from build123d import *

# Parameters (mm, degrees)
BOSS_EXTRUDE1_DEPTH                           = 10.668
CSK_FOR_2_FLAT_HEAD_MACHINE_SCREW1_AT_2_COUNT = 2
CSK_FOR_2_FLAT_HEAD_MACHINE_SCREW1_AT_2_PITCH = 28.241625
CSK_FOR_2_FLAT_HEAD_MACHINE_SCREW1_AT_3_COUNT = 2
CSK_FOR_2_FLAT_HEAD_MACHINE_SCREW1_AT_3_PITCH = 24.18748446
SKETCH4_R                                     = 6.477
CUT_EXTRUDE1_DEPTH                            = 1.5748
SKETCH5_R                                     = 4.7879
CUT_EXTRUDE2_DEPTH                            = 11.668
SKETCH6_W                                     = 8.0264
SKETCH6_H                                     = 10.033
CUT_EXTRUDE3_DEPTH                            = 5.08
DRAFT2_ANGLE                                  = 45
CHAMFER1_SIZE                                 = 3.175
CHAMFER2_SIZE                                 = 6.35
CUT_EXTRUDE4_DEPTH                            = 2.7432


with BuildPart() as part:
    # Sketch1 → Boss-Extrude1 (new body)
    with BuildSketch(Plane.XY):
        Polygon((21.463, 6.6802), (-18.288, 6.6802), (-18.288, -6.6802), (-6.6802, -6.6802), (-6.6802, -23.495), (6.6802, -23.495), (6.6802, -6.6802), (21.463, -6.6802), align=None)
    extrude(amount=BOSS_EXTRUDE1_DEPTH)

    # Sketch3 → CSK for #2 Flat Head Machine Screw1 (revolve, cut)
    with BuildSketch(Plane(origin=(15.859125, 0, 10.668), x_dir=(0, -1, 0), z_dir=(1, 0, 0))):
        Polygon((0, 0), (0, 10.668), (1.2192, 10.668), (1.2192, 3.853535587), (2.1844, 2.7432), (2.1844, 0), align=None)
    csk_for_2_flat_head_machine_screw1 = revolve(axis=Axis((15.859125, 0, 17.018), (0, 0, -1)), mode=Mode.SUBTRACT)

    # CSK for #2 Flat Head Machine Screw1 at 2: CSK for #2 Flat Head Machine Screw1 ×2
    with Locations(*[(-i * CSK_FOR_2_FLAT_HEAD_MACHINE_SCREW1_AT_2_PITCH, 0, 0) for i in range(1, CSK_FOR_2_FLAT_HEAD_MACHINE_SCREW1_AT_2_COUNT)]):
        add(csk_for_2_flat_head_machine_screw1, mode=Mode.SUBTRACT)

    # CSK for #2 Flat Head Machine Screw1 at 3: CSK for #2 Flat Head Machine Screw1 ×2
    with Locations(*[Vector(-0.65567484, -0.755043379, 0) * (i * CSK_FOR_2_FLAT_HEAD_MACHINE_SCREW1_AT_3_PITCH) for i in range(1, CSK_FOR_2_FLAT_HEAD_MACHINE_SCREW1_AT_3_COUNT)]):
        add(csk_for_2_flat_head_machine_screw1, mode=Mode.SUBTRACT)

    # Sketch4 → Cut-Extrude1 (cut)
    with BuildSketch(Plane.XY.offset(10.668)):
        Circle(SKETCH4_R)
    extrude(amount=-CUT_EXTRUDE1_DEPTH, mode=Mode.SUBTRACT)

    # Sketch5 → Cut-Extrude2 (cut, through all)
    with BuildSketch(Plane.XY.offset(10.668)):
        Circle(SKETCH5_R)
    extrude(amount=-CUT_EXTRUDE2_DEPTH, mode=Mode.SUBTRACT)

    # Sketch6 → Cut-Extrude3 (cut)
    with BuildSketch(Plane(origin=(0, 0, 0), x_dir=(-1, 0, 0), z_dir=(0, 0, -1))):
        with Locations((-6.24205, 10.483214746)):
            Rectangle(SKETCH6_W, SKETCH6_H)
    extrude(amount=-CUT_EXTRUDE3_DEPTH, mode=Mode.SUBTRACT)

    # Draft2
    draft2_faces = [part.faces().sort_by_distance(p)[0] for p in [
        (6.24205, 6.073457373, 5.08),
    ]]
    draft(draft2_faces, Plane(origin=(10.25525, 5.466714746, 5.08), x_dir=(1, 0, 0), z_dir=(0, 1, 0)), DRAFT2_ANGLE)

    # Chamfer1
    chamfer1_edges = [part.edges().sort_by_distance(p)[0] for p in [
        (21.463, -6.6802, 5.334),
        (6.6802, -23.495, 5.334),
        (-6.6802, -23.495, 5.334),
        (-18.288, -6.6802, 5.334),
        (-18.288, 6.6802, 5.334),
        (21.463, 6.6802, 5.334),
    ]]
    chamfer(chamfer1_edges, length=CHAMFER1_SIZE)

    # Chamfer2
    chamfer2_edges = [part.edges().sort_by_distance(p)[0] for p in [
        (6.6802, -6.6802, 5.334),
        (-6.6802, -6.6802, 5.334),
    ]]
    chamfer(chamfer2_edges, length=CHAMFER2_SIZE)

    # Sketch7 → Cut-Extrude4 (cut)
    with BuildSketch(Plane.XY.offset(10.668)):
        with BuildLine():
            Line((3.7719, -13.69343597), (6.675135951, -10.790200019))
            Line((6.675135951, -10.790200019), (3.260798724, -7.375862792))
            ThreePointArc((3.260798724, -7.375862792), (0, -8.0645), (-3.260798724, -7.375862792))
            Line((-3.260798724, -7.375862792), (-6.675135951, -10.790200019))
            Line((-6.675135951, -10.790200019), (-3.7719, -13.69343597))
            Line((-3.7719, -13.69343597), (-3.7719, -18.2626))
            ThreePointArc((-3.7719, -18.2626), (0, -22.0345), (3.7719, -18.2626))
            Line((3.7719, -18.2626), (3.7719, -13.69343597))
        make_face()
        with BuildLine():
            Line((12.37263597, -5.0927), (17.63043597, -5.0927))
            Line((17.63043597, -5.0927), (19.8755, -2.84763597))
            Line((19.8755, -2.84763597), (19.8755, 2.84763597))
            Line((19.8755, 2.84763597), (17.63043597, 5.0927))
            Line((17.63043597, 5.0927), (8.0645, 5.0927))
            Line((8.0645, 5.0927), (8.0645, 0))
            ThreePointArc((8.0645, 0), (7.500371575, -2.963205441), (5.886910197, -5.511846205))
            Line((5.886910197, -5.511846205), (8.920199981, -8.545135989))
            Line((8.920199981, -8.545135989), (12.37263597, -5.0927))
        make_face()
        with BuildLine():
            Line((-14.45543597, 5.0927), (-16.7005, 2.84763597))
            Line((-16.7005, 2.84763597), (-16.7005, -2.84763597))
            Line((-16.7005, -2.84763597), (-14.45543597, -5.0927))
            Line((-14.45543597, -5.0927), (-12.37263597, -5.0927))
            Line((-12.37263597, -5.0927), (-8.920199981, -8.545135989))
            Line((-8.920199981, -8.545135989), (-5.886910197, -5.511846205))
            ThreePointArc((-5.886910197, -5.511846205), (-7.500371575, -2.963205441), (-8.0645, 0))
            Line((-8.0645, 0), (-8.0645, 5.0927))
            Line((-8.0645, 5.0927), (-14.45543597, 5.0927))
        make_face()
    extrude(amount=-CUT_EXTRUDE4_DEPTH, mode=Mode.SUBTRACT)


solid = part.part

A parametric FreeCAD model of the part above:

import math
import FreeCAD as App
import Part
import Sketcher

V = App.Vector
Q = App.Units.Quantity


def edges_at(feature, points):
    """Names of the edges that pass closest to the given points."""
    edges = feature.Shape.Edges
    near = lambda p: min(range(len(edges)), key=lambda i: edges[i].distToShape(Part.Vertex(*p))[0])
    return sorted({f"Edge{near(p) + 1}" for p in points})


def faces_at(feature, points):
    """Names of the faces that lie closest to the given points."""
    faces = feature.Shape.Faces
    near = lambda p: min(range(len(faces)), key=lambda i: faces[i].distToShape(Part.Vertex(*p))[0])
    return sorted({f"Face{near(p) + 1}" for p in points})


def add_polygon(sketch, points):
    """Adds a closed chain of lines whose ends are joined by coincident constraints."""
    first, n = sketch.GeometryCount, len(points)
    for a, b in zip(points, points[1:] + points[:1]):
        sketch.addGeometry(Part.LineSegment(App.Vector(*a, 0), App.Vector(*b, 0)), False)
    for i in range(n):
        sketch.addConstraint(Sketcher.Constraint("Coincident", first + i, 2, first + (i + 1) % n, 1))

doc = App.newDocument("Part")
body = doc.addObject("PartDesign::Body", "Body")

# Sketch on XY plane
sketch1 = doc.addObject("Sketcher::SketchObject", "Sketch")
body.addObject(sketch1)
sketch1.AttachmentSupport = (doc.XY_Plane, [""])
sketch1.MapMode = "FlatFace"
add_polygon(sketch1, [(21, 7), (-18, 7), (-18, -7), (-7, -7), (-7, -23), (7, -23), (7, -7), (21, -7)])  # lines 0-7
sketch1.addConstraint([
    Sketcher.Constraint("Horizontal", 0),
    Sketcher.Constraint("Vertical", 1),
    Sketcher.Constraint("Horizontal", 2),
    Sketcher.Constraint("Vertical", 3),
    Sketcher.Constraint("Horizontal", 4),
    Sketcher.Constraint("Vertical", 5),
    Sketcher.Constraint("Horizontal", 6),
    Sketcher.Constraint("Vertical", 7),
    Sketcher.Constraint("Symmetric", 2, 2, 5, 2, -2),
    Sketcher.Constraint("Equal", 4, 1),
    Sketcher.Constraint("DistanceX", 0, 2, 0, 1, Q("1.565 in")),
    Sketcher.Constraint("DistanceX", 2, 1, 2, 2, Q("0.457 in")),
    Sketcher.Constraint("DistanceX", 4, 1, 4, 2, Q("0.526 in")),
    Sketcher.Constraint("DistanceY", 3, 2, 3, 1, Q("0.662 in")),
    Sketcher.Constraint("DistanceY", -1, 1, 0, 2, Q("0.263 in")),
])
pad1 = doc.addObject("PartDesign::Pad", "Pad")
body.addObject(pad1)
pad1.Profile = sketch1
pad1.Length = Q("0.42 in")

# Sketch on YZ plane
sketch2 = doc.addObject("Sketcher::SketchObject", "Sketch001")
body.addObject(sketch2)
sketch2.AttachmentSupport = (doc.YZ_Plane, [""])
sketch2.MapMode = "FlatFace"
sketch2.AttachmentOffset = App.Placement(V(0, 0, 15.859125), App.Rotation())
add_polygon(sketch2, [(0, 0), (0, 10.7), (-2.2, 10.7), (-2.2, 7.9), (-1.2, 6.8), (-1.2, 0)])  # lines 0-5
sketch2.addConstraint([
    Sketcher.Constraint("Vertical", 0),
    Sketcher.Constraint("Horizontal", 1),
    Sketcher.Constraint("Vertical", 2),
    Sketcher.Constraint("Vertical", 4),
    Sketcher.Constraint("Horizontal", 5),
    Sketcher.Constraint("Coincident", 5, 2, -1, 1),
    Sketcher.Constraint("Angle", 3, Q("-49 deg")),
    Sketcher.Constraint("DistanceY", 0, 1, 0, 2, Q("0.42 in")),
    Sketcher.Constraint("DistanceX", 1, 2, 1, 1, Q("0.086 in")),
    Sketcher.Constraint("DistanceX", 5, 1, 5, 2, Q("0.048 in")),
    Sketcher.Constraint("DistanceY", 2, 2, 2, 1, Q("0.108 in")),
])
groove = doc.addObject("PartDesign::Groove", "Groove")
body.addObject(groove)
groove.Profile = sketch2
groove.ReferenceAxis = (sketch2, ["V_Axis"])
groove.Angle = 360
doc.recompute()

linearpattern = doc.addObject("PartDesign::LinearPattern", "LinearPattern")
body.addObject(linearpattern)
linearpattern.Originals = [groove]
linearpattern.Direction = (doc.X_Axis, [""])
linearpattern.Mode = "offset"
linearpattern.Offset = 28.241625
linearpattern.Occurrences = 2
linearpattern.Reversed = True
body.Tip = linearpattern
doc.recompute()

datumline = doc.addObject("PartDesign::Line", "DatumLine")
body.addObject(datumline)
datumline.Placement = App.Placement(V(0, 0, 0), App.Rotation(V(0, 0, 1), V(-0.65567484, -0.755043379, 0)))
linearpattern2 = doc.addObject("PartDesign::LinearPattern", "LinearPattern001")
body.addObject(linearpattern2)
linearpattern2.Originals = [groove]
linearpattern2.Direction = (datumline, [""])
linearpattern2.Mode = "offset"
linearpattern2.Offset = 24.187484
linearpattern2.Occurrences = 2
body.Tip = linearpattern2

# Sketch on XY plane
sketch3 = doc.addObject("Sketcher::SketchObject", "Sketch002")
body.addObject(sketch3)
sketch3.AttachmentSupport = (doc.XY_Plane, [""])
sketch3.MapMode = "FlatFace"
sketch3.AttachmentOffset = App.Placement(V(0, 0, 0.42 * 25.4), App.Rotation())
sketch3.addGeometry(Part.Circle(V(0, 0, 0), V(0, 0, 1), 6), False)
sketch3.addConstraint([
    Sketcher.Constraint("Coincident", 0, 3, -1, 1),
    Sketcher.Constraint("Diameter", 0, Q("0.51 in")),
])
pocket1 = doc.addObject("PartDesign::Pocket", "Pocket")
body.addObject(pocket1)
pocket1.Profile = sketch3
pocket1.Length = Q("0.062 in")

# Sketch on XY plane
sketch4 = doc.addObject("Sketcher::SketchObject", "Sketch003")
body.addObject(sketch4)
sketch4.AttachmentSupport = (doc.XY_Plane, [""])
sketch4.MapMode = "FlatFace"
sketch4.AttachmentOffset = App.Placement(V(0, 0, 0.42 * 25.4), App.Rotation())
sketch4.addGeometry(Part.Circle(V(0, 0, 0), V(0, 0, 1), 4.8), False)
sketch4.addConstraint([
    Sketcher.Constraint("Coincident", 0, 3, -1, 1),
    Sketcher.Constraint("Diameter", 0, Q("0.377 in")),
])
pocket2 = doc.addObject("PartDesign::Pocket", "Pocket001")
body.addObject(pocket2)
pocket2.Profile = sketch4
pocket2.Type = "ThroughAll"

# Sketch on XY plane
sketch5 = doc.addObject("Sketcher::SketchObject", "Sketch004")
body.addObject(sketch5)
sketch5.AttachmentSupport = (doc.XY_Plane, [""])
sketch5.MapMode = "FlatFace"
add_polygon(sketch5, [(10, 15), (10, 5), (2, 5), (2, 15)])  # lines 0-3
sketch5.addConstraint([
    Sketcher.Constraint("Vertical", 0),
    Sketcher.Constraint("Horizontal", 1),
    Sketcher.Constraint("Vertical", 2),
    Sketcher.Constraint("Horizontal", 3),
    Sketcher.Constraint("DistanceX", 1, 2, 1, 1, Q("0.316 in")),
    Sketcher.Constraint("DistanceY", 0, 2, 0, 1, Q("0.395 in")),
    Sketcher.Constraint("DistanceX", -1, 1, 0, 2, Q("10.25525 mm")),
    Sketcher.Constraint("DistanceY", -1, 1, 0, 2, Q("5.466715 mm")),
])
pocket3 = doc.addObject("PartDesign::Pocket", "Pocket002")
body.addObject(pocket3)
pocket3.Profile = sketch5
pocket3.Length = Q("0.2 in")
pocket3.Reversed = True
doc.recompute()

datumplane = doc.addObject("PartDesign::Plane", "DatumPlane")
body.addObject(datumplane)
datumplane.AttachmentSupport = (doc.XZ_Plane, [""])
datumplane.MapMode = "FlatFace"
datumplane.AttachmentOffset = App.Placement(V(0, 0, -5.466715), App.Rotation())
draft = doc.addObject("PartDesign::Draft", "Draft")
body.addObject(draft)
draft.Base = (pocket3, faces_at(pocket3, [(6.242, 6.073, 5.08)]))
draft.NeutralPlane = (datumplane, [""])
draft.Angle = 45
draft.Reversed = True
doc.recompute()

chamfer = doc.addObject("PartDesign::Chamfer", "Chamfer")
body.addObject(chamfer)
chamfer.Base = (draft, edges_at(draft, [
    (21.463, -6.68, 5.334),
    (6.68, -23.495, 5.334),
    (-6.68, -23.495, 5.334),
    (-18.288, -6.68, 5.334),
    (-18.288, 6.68, 5.334),
    (21.463, 6.68, 5.334),
]))
chamfer.Size = Q("0.125 in")
doc.recompute()

chamfer2 = doc.addObject("PartDesign::Chamfer", "Chamfer001")
body.addObject(chamfer2)
chamfer2.Base = (chamfer, edges_at(chamfer, [(6.68, -6.68, 5.334), (-6.68, -6.68, 5.334)]))
chamfer2.Size = Q("0.25 in")

# Sketch on XY plane
sketch6 = doc.addObject("Sketcher::SketchObject", "Sketch005")
body.addObject(sketch6)
sketch6.AttachmentSupport = (doc.XY_Plane, [""])
sketch6.MapMode = "FlatFace"
sketch6.AttachmentOffset = App.Placement(V(0, 0, 0.42 * 25.4), App.Rotation())
sketch6.addGeometry([
    Part.LineSegment(V(3.8, -13.7, 0), V(6.7, -10.8, 0)),  # 0
    Part.LineSegment(V(6.7, -10.8, 0), V(3.3, -7.4, 0)),  # 1
    Part.ArcOfCircle(Part.Circle(V(0, 0, 0), V(0, 0, 1), 8.1), math.radians(-114), math.radians(-66)),  # 2
    Part.LineSegment(V(-3.3, -7.4, 0), V(-6.7, -10.8, 0)),  # 3
    Part.LineSegment(V(-6.7, -10.8, 0), V(-3.8, -13.7, 0)),  # 4
    Part.LineSegment(V(-3.8, -13.7, 0), V(-3.8, -18.3, 0)),  # 5
    Part.ArcOfCircle(Part.Circle(V(0, -18.3, 0), V(0, 0, 1), 3.8), math.radians(180), math.radians(360)),  # 6
    Part.LineSegment(V(3.8, -18.3, 0), V(3.8, -13.7, 0)),  # 7
    Part.LineSegment(V(12.4, -5.1, 0), V(17.6, -5.1, 0)),  # 8
    Part.LineSegment(V(17.6, -5.1, 0), V(19.9, -2.8, 0)),  # 9
    Part.LineSegment(V(19.9, -2.8, 0), V(19.9, 2.8, 0)),  # 10
    Part.LineSegment(V(19.9, 2.8, 0), V(17.6, 5.1, 0)),  # 11
    Part.LineSegment(V(17.6, 5.1, 0), V(8.1, 5.1, 0)),  # 12
    Part.LineSegment(V(8.1, 5.1, 0), V(8.1, 0, 0)),  # 13
    Part.ArcOfCircle(Part.Circle(V(0, 0, 0), V(0, 0, 1), 8.1), math.radians(-43), math.radians(0)),  # 14
    Part.LineSegment(V(5.9, -5.5, 0), V(8.9, -8.5, 0)),  # 15
    Part.LineSegment(V(8.9, -8.5, 0), V(12.4, -5.1, 0)),  # 16
    Part.LineSegment(V(-14.5, 5.1, 0), V(-16.7, 2.8, 0)),  # 17
    Part.LineSegment(V(-16.7, 2.8, 0), V(-16.7, -2.8, 0)),  # 18
    Part.LineSegment(V(-16.7, -2.8, 0), V(-14.5, -5.1, 0)),  # 19
    Part.LineSegment(V(-14.5, -5.1, 0), V(-12.4, -5.1, 0)),  # 20
    Part.LineSegment(V(-12.4, -5.1, 0), V(-8.9, -8.5, 0)),  # 21
    Part.LineSegment(V(-8.9, -8.5, 0), V(-5.9, -5.5, 0)),  # 22
    Part.ArcOfCircle(Part.Circle(V(0, 0, 0), V(0, 0, 1), 8.1), math.radians(-180), math.radians(-137)),  # 23
    Part.LineSegment(V(-8.1, 0, 0), V(-8.1, 5.1, 0)),  # 24
    Part.LineSegment(V(-8.1, 5.1, 0), V(-14.5, 5.1, 0)),  # 25
], False)
sketch6.addConstraint([
    Sketcher.Constraint("Coincident", 0, 2, 1, 1),
    Sketcher.Constraint("Coincident", 1, 2, 2, 2),
    Sketcher.Constraint("Coincident", 2, 1, 3, 1),
    Sketcher.Constraint("Coincident", 3, 2, 4, 1),
    Sketcher.Constraint("Coincident", 4, 2, 5, 1),
    Sketcher.Constraint("Tangent", 5, 2, 6, 1),
    Sketcher.Constraint("Tangent", 6, 2, 7, 1),
    Sketcher.Constraint("Coincident", 7, 2, 0, 1),
    Sketcher.Constraint("Coincident", 8, 2, 9, 1),
    Sketcher.Constraint("Coincident", 9, 2, 10, 1),
    Sketcher.Constraint("Coincident", 10, 2, 11, 1),
    Sketcher.Constraint("Coincident", 11, 2, 12, 1),
    Sketcher.Constraint("Coincident", 12, 2, 13, 1),
    Sketcher.Constraint("Tangent", 13, 2, 14, 2),
    Sketcher.Constraint("Coincident", 14, 1, 15, 1),
    Sketcher.Constraint("Coincident", 15, 2, 16, 1),
    Sketcher.Constraint("Coincident", 16, 2, 8, 1),
    Sketcher.Constraint("Coincident", 17, 2, 18, 1),
    Sketcher.Constraint("Coincident", 18, 2, 19, 1),
    Sketcher.Constraint("Coincident", 19, 2, 20, 1),
    Sketcher.Constraint("Coincident", 20, 2, 21, 1),
    Sketcher.Constraint("Coincident", 21, 2, 22, 1),
    Sketcher.Constraint("Coincident", 22, 2, 23, 2),
    Sketcher.Constraint("Tangent", 23, 1, 24, 1),
    Sketcher.Constraint("Coincident", 24, 2, 25, 1),
    Sketcher.Constraint("Coincident", 25, 2, 17, 1),
    Sketcher.Constraint("Vertical", 5),
    Sketcher.Constraint("Vertical", 7),
    Sketcher.Constraint("Horizontal", 8),
    Sketcher.Constraint("Vertical", 10),
    Sketcher.Constraint("Horizontal", 12),
    Sketcher.Constraint("Vertical", 13),
    Sketcher.Constraint("Vertical", 18),
    Sketcher.Constraint("Horizontal", 20),
    Sketcher.Constraint("Vertical", 24),
    Sketcher.Constraint("Horizontal", 25),
    Sketcher.Constraint("Coincident", 2, 3, -1, 1),
    Sketcher.Constraint("Coincident", 14, 3, -1, 1),
    Sketcher.Constraint("Coincident", 23, 3, -1, 1),
    Sketcher.Constraint("Equal", 2, 14),
    Sketcher.Constraint("Equal", 14, 23),
    Sketcher.Constraint("Symmetric", 0, 2, 3, 2, -2),
    Sketcher.Constraint("Symmetric", 4, 2, 7, 2, -2),
    Sketcher.Constraint("Symmetric", 16, 2, 20, 2, -2),
    Sketcher.Constraint("Symmetric", 15, 2, 21, 2, -2),
    Sketcher.Constraint("Symmetric", 8, 2, 11, 2, -1),
    Sketcher.Constraint("Symmetric", 19, 2, 25, 2, -1),
    Sketcher.Constraint("Perpendicular", 0, 1),
    Sketcher.Constraint("Perpendicular", 1, 3),
    Sketcher.Constraint("Perpendicular", 3, 4),
    Sketcher.Constraint("Perpendicular", 4, 9),
    Sketcher.Constraint("Perpendicular", 9, 11),
    Sketcher.Constraint("Parallel", 11, 15),
    Sketcher.Constraint("Perpendicular", 15, 16),
    Sketcher.Constraint("Parallel", 16, 17),
    Sketcher.Constraint("Perpendicular", 17, 19),
    Sketcher.Constraint("Perpendicular", 21, 22),
    Sketcher.Constraint("Horizontal", 10, 2, 17, 2),
    Sketcher.Constraint("Radius", 2, Q("0.3175 in")),
    Sketcher.Constraint("Radius", 6, Q("0.1485 in")),
    Sketcher.Constraint("DistanceX", 8, 1, 8, 2, Q("0.207 in")),
    Sketcher.Constraint("DistanceX", 20, 1, 20, 2, Q("0.082 in")),
    Sketcher.Constraint("DistanceX", 17, 2, 24, 2, Q("0.34 in")),
    Sketcher.Constraint("Distance", 9, Q("0.125 in")),
    Sketcher.Constraint("DistanceY", 13, 2, 13, 1, Q("0.2005 in")),
    Sketcher.Constraint("DistanceY", 6, 3, -1, 1, Q("0.719 in")),
    Sketcher.Constraint("DistanceY", 7, 2, 9, 2, Q("0.427 in")),
    Sketcher.Constraint("DistanceY", 1, 2, 10, 2, Q("0.4025 in")),
    Sketcher.Constraint("DistanceX", -1, 1, 15, 2, Q("8.9202 mm")),
])
pocket4 = doc.addObject("PartDesign::Pocket", "Pocket003")
body.addObject(pocket4)
pocket4.Profile = sketch6
pocket4.Length = Q("0.108 in")

doc.recompute()
